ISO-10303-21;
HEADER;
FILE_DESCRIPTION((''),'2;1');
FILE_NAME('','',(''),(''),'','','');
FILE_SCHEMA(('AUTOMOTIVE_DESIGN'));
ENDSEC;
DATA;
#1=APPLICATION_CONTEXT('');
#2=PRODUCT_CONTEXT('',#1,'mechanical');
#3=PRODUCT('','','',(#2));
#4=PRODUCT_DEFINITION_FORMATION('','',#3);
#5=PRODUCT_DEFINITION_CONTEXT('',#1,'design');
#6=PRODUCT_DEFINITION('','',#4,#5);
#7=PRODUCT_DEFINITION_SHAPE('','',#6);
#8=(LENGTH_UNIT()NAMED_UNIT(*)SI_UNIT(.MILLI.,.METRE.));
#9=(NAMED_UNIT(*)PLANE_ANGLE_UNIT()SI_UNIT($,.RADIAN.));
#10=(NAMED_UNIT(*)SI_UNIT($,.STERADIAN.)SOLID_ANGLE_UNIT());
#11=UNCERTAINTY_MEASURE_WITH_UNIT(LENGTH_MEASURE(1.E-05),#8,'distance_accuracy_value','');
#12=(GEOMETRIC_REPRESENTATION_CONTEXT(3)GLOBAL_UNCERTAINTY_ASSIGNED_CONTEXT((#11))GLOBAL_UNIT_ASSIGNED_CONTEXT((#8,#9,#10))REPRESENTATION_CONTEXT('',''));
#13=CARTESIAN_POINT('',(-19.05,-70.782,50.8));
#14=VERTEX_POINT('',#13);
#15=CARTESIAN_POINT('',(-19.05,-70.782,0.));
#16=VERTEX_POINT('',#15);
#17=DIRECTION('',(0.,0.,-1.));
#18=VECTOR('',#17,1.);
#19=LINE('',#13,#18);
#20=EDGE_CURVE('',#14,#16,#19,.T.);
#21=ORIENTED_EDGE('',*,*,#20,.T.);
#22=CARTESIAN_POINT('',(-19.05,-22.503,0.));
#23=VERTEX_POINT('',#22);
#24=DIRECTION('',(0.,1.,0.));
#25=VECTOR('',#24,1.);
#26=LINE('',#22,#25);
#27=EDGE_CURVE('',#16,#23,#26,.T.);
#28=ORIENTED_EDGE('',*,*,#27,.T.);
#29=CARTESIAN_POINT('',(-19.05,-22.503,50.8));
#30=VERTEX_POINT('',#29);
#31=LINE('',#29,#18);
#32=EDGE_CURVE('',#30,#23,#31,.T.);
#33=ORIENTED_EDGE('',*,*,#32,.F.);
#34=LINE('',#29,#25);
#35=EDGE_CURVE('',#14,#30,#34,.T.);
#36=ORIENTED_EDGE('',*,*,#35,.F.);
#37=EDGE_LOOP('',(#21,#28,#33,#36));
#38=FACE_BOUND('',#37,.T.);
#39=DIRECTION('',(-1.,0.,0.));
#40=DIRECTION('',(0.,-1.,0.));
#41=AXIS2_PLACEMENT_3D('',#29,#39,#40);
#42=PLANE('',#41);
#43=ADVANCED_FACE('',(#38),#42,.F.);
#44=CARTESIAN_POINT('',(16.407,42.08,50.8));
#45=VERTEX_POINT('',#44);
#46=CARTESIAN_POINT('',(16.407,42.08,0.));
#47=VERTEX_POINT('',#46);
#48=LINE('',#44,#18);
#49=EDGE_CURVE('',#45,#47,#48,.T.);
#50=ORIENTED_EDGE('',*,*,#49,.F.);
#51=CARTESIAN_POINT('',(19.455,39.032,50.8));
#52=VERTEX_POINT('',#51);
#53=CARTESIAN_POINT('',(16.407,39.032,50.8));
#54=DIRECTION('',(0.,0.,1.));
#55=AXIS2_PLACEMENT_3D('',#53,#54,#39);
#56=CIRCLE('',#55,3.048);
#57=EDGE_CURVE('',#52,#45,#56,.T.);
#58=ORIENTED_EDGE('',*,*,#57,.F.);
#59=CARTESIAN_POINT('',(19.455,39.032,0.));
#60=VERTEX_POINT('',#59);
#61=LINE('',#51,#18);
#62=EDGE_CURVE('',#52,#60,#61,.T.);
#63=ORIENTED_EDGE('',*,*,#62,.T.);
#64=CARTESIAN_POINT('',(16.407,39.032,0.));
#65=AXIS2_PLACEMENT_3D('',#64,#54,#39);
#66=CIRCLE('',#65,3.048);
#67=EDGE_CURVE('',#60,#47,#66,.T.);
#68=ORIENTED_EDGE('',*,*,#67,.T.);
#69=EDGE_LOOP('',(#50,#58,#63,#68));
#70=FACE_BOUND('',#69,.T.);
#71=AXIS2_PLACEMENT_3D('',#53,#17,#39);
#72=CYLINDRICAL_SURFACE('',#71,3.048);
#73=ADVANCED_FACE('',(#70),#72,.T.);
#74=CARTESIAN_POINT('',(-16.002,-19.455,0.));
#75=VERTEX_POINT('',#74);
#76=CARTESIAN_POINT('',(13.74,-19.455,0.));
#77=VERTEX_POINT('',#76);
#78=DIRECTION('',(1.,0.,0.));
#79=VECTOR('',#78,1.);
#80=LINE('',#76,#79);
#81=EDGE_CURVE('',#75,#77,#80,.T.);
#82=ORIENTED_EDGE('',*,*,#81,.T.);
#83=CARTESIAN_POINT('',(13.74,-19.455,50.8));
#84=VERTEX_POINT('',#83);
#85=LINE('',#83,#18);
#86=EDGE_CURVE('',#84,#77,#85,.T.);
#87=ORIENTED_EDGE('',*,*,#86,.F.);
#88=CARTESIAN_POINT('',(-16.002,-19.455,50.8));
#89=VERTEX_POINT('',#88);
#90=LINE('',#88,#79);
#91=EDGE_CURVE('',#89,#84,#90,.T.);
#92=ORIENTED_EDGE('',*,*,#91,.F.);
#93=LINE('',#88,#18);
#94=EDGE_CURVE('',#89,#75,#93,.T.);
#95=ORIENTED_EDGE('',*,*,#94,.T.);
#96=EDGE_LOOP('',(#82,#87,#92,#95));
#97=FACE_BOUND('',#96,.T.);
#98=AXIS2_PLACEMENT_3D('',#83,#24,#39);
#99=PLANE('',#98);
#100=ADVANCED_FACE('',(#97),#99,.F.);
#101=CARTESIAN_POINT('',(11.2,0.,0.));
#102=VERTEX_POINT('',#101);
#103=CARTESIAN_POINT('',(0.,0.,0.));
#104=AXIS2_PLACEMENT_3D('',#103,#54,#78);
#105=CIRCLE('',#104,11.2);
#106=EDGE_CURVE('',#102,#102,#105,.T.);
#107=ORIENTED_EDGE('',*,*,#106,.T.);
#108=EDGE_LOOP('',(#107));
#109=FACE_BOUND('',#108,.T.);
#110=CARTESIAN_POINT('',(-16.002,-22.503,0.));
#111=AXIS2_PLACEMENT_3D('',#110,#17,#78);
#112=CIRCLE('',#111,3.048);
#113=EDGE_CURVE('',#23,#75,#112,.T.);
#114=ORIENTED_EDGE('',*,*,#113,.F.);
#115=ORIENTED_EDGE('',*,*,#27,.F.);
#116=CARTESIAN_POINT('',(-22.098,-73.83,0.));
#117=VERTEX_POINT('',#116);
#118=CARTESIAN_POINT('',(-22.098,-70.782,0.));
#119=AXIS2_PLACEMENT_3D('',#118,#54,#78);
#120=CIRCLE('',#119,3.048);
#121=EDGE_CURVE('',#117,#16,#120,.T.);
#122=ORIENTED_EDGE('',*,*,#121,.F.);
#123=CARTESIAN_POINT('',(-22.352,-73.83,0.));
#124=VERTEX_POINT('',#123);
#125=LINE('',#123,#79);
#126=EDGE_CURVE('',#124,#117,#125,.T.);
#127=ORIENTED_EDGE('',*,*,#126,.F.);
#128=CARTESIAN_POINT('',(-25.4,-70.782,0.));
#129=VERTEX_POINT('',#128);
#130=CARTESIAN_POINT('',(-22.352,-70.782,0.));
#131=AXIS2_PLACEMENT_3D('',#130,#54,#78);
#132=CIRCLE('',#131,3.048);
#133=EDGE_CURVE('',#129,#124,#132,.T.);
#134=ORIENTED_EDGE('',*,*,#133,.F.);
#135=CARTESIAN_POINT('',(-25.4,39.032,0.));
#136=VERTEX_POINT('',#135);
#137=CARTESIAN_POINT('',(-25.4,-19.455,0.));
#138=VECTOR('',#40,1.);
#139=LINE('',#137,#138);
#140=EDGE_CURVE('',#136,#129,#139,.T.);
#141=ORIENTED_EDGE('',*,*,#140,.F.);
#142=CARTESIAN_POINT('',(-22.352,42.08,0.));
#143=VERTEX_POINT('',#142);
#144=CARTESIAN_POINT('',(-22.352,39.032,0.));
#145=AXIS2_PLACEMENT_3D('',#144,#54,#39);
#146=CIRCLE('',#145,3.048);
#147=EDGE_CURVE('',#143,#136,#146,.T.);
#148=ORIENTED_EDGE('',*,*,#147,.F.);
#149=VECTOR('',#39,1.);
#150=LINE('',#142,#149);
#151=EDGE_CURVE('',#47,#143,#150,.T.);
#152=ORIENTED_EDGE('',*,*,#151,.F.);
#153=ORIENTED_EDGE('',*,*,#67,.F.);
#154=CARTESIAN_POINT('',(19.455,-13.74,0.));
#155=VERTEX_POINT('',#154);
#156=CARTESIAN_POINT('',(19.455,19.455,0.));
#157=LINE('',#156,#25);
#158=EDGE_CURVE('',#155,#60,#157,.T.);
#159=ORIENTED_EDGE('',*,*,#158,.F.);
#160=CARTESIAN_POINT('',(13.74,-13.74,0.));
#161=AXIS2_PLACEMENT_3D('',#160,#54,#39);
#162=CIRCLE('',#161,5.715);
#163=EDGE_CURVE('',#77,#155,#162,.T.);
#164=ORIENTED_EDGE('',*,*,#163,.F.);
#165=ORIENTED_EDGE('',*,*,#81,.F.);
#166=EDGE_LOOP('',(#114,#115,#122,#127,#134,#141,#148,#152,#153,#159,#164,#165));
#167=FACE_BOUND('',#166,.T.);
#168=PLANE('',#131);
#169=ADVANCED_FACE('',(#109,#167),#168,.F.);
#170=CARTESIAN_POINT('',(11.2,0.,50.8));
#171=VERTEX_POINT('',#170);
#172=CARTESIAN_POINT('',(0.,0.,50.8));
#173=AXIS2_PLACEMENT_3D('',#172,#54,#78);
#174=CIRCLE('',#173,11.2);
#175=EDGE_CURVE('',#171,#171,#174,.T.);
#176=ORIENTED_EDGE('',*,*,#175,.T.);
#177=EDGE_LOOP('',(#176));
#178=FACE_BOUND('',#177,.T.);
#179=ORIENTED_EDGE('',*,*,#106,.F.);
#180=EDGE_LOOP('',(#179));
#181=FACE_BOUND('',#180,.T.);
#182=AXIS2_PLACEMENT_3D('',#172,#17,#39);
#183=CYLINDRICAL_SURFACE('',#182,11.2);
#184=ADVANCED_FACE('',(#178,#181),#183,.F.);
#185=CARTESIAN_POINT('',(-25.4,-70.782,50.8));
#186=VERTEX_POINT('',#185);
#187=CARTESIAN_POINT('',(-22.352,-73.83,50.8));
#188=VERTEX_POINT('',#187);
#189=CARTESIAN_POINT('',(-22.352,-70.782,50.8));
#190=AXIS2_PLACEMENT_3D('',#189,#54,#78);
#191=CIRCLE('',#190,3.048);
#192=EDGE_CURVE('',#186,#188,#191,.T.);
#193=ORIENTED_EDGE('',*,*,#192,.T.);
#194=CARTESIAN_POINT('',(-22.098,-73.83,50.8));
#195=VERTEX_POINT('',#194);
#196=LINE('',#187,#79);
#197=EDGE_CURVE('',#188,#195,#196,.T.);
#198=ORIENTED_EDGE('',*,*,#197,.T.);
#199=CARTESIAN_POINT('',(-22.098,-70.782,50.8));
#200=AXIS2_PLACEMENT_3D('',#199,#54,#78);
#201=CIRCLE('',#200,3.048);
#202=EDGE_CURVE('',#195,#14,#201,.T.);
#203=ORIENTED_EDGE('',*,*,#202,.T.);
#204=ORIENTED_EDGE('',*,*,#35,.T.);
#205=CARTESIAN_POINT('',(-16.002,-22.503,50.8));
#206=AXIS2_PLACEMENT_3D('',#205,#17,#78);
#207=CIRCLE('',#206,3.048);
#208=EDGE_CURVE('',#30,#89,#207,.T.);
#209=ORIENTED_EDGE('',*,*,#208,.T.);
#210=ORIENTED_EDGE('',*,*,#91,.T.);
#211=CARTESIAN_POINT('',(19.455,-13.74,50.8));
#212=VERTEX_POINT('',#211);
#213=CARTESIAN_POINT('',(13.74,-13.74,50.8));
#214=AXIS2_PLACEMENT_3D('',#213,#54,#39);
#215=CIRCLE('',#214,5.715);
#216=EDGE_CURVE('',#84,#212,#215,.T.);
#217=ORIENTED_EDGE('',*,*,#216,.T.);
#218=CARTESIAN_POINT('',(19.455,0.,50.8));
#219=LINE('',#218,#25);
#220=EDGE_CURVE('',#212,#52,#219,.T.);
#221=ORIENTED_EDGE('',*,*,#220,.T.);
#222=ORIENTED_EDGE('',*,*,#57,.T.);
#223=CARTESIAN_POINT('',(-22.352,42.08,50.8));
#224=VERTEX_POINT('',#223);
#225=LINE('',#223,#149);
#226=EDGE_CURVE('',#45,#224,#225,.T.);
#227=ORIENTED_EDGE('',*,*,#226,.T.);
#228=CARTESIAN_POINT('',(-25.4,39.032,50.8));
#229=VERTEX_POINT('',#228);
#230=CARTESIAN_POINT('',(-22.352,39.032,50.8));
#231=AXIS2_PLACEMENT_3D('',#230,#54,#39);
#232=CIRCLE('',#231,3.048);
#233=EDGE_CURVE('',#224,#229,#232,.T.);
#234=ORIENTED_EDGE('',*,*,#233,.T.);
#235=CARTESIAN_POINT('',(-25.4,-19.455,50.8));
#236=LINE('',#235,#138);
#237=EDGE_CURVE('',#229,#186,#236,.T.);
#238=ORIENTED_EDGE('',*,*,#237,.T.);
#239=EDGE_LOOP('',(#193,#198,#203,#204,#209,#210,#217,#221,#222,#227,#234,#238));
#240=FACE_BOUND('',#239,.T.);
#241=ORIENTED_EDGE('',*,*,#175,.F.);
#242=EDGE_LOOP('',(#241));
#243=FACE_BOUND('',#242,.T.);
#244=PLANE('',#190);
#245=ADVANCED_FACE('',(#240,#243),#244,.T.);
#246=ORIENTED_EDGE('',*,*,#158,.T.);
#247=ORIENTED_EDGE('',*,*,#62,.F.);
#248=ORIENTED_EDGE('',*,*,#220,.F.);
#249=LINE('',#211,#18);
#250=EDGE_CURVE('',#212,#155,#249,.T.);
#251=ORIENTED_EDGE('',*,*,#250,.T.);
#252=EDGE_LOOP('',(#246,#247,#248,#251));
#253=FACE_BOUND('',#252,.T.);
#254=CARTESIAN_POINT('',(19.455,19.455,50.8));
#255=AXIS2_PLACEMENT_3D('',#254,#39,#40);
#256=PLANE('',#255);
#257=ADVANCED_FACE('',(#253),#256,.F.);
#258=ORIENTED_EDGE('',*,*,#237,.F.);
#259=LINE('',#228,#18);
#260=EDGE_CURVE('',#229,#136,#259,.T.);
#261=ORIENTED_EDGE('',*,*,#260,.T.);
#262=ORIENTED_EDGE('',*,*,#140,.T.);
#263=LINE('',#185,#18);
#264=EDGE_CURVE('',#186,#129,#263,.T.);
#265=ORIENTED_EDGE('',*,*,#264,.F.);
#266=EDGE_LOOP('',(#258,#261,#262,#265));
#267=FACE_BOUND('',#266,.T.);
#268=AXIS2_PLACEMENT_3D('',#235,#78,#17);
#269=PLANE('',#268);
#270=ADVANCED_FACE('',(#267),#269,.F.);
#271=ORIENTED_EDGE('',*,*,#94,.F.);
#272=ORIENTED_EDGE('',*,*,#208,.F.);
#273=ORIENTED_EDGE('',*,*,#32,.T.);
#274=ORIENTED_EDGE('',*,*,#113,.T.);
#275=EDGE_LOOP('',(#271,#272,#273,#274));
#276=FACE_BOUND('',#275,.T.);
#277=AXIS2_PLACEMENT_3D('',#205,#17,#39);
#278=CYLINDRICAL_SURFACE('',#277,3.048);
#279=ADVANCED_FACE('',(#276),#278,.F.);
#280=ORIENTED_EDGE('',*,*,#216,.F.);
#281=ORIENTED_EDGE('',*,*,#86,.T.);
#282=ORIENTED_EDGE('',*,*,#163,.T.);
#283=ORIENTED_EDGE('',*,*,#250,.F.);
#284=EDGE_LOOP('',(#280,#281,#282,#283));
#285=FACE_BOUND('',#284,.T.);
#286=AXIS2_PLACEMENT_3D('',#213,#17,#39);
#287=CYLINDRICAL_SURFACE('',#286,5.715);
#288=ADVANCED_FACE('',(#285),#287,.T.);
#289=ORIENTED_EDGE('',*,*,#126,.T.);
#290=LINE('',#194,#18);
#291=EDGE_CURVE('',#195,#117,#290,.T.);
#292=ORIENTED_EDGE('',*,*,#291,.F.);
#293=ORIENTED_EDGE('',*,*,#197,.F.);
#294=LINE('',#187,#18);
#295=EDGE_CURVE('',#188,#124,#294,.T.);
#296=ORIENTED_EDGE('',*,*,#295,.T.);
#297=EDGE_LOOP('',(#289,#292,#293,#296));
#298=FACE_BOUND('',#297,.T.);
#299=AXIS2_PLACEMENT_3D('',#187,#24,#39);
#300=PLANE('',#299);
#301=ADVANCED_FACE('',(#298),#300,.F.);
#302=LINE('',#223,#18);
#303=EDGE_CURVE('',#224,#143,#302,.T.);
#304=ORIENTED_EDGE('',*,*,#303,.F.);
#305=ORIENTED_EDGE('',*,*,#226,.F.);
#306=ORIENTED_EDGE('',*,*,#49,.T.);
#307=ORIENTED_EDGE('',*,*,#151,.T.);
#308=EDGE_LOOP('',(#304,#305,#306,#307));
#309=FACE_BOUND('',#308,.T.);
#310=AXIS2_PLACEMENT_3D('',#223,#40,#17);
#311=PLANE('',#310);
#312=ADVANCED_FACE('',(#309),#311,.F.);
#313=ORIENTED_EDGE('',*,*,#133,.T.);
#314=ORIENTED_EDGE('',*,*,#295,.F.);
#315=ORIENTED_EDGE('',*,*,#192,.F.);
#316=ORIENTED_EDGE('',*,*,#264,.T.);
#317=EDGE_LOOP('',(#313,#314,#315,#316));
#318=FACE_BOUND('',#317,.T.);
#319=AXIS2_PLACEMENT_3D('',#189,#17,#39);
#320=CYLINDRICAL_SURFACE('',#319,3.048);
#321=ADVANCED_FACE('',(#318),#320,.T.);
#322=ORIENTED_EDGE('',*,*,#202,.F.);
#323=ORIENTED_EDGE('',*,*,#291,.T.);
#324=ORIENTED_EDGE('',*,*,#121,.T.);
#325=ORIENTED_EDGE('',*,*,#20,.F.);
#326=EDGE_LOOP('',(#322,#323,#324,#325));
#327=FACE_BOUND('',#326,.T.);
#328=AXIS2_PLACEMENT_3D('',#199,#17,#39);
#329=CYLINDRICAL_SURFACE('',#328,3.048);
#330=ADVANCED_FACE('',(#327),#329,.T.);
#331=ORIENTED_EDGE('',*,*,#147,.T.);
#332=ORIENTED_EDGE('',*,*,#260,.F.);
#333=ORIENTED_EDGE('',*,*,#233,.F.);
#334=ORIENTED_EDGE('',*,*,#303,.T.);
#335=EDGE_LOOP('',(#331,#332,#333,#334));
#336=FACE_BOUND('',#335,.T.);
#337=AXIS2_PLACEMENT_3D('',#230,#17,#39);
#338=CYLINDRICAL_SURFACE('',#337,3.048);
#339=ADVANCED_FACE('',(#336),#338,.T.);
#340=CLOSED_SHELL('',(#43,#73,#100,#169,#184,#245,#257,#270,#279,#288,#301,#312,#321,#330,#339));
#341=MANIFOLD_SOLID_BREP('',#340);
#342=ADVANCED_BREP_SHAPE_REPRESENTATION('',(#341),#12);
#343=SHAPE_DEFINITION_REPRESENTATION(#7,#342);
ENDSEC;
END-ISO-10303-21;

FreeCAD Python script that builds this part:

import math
import FreeCAD as App
import Part
import Sketcher
from FreeCAD import Vector
Q = App.Units.Quantity

doc = App.newDocument("Part")
body = doc.addObject("PartDesign::Body", "Body")

# Sketch on XY plane
sketch1 = body.newObject("Sketcher::SketchObject", "Sketch")
sketch1.AttachmentSupport = (doc.getObject("XY_Plane"), [""])
sketch1.MapMode = "FlatFace"
sketch1.addGeometry(Part.ArcOfCircle(Part.Circle(Vector(-22.35, 39.03, 0), Vector(0, 0, 1), 3.05), math.radians(90), math.radians(180)), False)
sketch1.addGeometry(Part.LineSegment(Vector(-25.4, 39.03, 0), Vector(-25.4, -70.78, 0)), False)
sketch1.addGeometry(Part.ArcOfCircle(Part.Circle(Vector(-22.35, -70.78, 0), Vector(0, 0, 1), 3.05), math.radians(180), math.radians(270)), False)
sketch1.addGeometry(Part.LineSegment(Vector(-22.35, -73.83, 0), Vector(-22.1, -73.83, 0)), False)
sketch1.addGeometry(Part.ArcOfCircle(Part.Circle(Vector(-22.1, -70.78, 0), Vector(0, 0, 1), 3.05), math.radians(-90), math.radians(0)), False)
sketch1.addGeometry(Part.LineSegment(Vector(-19.05, -70.78, 0), Vector(-19.05, -22.5, 0)), False)
sketch1.addGeometry(Part.ArcOfCircle(Part.Circle(Vector(-16, -22.5, 0), Vector(0, 0, 1), 3.05), math.radians(90), math.radians(180)), False)
sketch1.addGeometry(Part.LineSegment(Vector(-16, -19.45, 0), Vector(13.74, -19.45, 0)), False)
sketch1.addGeometry(Part.ArcOfCircle(Part.Circle(Vector(13.74, -13.74, 0), Vector(0, 0, 1), 5.72), math.radians(-90), math.radians(0)), False)
sketch1.addGeometry(Part.LineSegment(Vector(19.45, -13.74, 0), Vector(19.45, 39.03, 0)), False)
sketch1.addGeometry(Part.ArcOfCircle(Part.Circle(Vector(16.41, 39.03, 0), Vector(0, 0, 1), 3.05), math.radians(0), math.radians(90)), False)
sketch1.addGeometry(Part.LineSegment(Vector(16.41, 42.08, 0), Vector(-22.35, 42.08, 0)), False)
sketch1.addGeometry(Part.Circle(Vector(0, 0, 0), Vector(0, 0, 1), 11.2), False)
sketch1.addConstraint(Sketcher.Constraint("Tangent", 0, 2, 1, 1))
sketch1.addConstraint(Sketcher.Constraint("Tangent", 1, 2, 2, 1))
sketch1.addConstraint(Sketcher.Constraint("Tangent", 2, 2, 3, 1))
sketch1.addConstraint(Sketcher.Constraint("Tangent", 3, 2, 4, 1))
sketch1.addConstraint(Sketcher.Constraint("Tangent", 4, 2, 5, 1))
sketch1.addConstraint(Sketcher.Constraint("Tangent", 5, 2, 6, 2))
sketch1.addConstraint(Sketcher.Constraint("Tangent", 6, 1, 7, 1))
sketch1.addConstraint(Sketcher.Constraint("Tangent", 7, 2, 8, 1))
sketch1.addConstraint(Sketcher.Constraint("Tangent", 8, 2, 9, 1))
sketch1.addConstraint(Sketcher.Constraint("Tangent", 9, 2, 10, 1))
sketch1.addConstraint(Sketcher.Constraint("Tangent", 10, 2, 11, 1))
sketch1.addConstraint(Sketcher.Constraint("Tangent", 11, 2, 0, 1))
sketch1.addConstraint(Sketcher.Constraint("Vertical", 1))
sketch1.addConstraint(Sketcher.Constraint("Horizontal", 3))
sketch1.addConstraint(Sketcher.Constraint("Vertical", 5))
sketch1.addConstraint(Sketcher.Constraint("Horizontal", 7))
sketch1.addConstraint(Sketcher.Constraint("Vertical", 9))
sketch1.addConstraint(Sketcher.Constraint("Horizontal", 11))
sketch1.addConstraint(Sketcher.Constraint("Coincident", 12, 3, -1, 1))
sketch1.addConstraint(Sketcher.Constraint("Equal", 0, 2))
sketch1.addConstraint(Sketcher.Constraint("Equal", 2, 4))
sketch1.addConstraint(Sketcher.Constraint("Equal", 4, 6))
sketch1.addConstraint(Sketcher.Constraint("Equal", 6, 10))
sketch1.addConstraint(Sketcher.Constraint("Radius", 0, Q("0.12 in")))
sketch1.addConstraint(Sketcher.Constraint("DistanceX", 0, 2, -1, 1, Q("1 in")))
sketch1.addConstraint(Sketcher.Constraint("Radius", 8, Q("0.225 in")))
sketch1.addConstraint(Sketcher.Constraint("DistanceX", 3, 1, 3, 2, Q("0.01 in")))
sketch1.addConstraint(Sketcher.Constraint("Diameter", 12, Q("22.4 mm")))
sketch1.addConstraint(Sketcher.Constraint("DistanceX", 7, 1, 7, 2, Q("29.742 mm")))
sketch1.addConstraint(Sketcher.Constraint("DistanceY", 1, 2, 1, 1, Q("109.814 mm")))
sketch1.addConstraint(Sketcher.Constraint("DistanceY", 5, 1, 5, 2, Q("48.279 mm")))
sketch1.addConstraint(Sketcher.Constraint("DistanceY", -1, 1, 0, 3, Q("39.032 mm")))
pad1 = body.newObject("PartDesign::Pad", "Pad")
pad1.Profile = sketch1
pad1.Length = Q("2 in")

doc.recompute()
